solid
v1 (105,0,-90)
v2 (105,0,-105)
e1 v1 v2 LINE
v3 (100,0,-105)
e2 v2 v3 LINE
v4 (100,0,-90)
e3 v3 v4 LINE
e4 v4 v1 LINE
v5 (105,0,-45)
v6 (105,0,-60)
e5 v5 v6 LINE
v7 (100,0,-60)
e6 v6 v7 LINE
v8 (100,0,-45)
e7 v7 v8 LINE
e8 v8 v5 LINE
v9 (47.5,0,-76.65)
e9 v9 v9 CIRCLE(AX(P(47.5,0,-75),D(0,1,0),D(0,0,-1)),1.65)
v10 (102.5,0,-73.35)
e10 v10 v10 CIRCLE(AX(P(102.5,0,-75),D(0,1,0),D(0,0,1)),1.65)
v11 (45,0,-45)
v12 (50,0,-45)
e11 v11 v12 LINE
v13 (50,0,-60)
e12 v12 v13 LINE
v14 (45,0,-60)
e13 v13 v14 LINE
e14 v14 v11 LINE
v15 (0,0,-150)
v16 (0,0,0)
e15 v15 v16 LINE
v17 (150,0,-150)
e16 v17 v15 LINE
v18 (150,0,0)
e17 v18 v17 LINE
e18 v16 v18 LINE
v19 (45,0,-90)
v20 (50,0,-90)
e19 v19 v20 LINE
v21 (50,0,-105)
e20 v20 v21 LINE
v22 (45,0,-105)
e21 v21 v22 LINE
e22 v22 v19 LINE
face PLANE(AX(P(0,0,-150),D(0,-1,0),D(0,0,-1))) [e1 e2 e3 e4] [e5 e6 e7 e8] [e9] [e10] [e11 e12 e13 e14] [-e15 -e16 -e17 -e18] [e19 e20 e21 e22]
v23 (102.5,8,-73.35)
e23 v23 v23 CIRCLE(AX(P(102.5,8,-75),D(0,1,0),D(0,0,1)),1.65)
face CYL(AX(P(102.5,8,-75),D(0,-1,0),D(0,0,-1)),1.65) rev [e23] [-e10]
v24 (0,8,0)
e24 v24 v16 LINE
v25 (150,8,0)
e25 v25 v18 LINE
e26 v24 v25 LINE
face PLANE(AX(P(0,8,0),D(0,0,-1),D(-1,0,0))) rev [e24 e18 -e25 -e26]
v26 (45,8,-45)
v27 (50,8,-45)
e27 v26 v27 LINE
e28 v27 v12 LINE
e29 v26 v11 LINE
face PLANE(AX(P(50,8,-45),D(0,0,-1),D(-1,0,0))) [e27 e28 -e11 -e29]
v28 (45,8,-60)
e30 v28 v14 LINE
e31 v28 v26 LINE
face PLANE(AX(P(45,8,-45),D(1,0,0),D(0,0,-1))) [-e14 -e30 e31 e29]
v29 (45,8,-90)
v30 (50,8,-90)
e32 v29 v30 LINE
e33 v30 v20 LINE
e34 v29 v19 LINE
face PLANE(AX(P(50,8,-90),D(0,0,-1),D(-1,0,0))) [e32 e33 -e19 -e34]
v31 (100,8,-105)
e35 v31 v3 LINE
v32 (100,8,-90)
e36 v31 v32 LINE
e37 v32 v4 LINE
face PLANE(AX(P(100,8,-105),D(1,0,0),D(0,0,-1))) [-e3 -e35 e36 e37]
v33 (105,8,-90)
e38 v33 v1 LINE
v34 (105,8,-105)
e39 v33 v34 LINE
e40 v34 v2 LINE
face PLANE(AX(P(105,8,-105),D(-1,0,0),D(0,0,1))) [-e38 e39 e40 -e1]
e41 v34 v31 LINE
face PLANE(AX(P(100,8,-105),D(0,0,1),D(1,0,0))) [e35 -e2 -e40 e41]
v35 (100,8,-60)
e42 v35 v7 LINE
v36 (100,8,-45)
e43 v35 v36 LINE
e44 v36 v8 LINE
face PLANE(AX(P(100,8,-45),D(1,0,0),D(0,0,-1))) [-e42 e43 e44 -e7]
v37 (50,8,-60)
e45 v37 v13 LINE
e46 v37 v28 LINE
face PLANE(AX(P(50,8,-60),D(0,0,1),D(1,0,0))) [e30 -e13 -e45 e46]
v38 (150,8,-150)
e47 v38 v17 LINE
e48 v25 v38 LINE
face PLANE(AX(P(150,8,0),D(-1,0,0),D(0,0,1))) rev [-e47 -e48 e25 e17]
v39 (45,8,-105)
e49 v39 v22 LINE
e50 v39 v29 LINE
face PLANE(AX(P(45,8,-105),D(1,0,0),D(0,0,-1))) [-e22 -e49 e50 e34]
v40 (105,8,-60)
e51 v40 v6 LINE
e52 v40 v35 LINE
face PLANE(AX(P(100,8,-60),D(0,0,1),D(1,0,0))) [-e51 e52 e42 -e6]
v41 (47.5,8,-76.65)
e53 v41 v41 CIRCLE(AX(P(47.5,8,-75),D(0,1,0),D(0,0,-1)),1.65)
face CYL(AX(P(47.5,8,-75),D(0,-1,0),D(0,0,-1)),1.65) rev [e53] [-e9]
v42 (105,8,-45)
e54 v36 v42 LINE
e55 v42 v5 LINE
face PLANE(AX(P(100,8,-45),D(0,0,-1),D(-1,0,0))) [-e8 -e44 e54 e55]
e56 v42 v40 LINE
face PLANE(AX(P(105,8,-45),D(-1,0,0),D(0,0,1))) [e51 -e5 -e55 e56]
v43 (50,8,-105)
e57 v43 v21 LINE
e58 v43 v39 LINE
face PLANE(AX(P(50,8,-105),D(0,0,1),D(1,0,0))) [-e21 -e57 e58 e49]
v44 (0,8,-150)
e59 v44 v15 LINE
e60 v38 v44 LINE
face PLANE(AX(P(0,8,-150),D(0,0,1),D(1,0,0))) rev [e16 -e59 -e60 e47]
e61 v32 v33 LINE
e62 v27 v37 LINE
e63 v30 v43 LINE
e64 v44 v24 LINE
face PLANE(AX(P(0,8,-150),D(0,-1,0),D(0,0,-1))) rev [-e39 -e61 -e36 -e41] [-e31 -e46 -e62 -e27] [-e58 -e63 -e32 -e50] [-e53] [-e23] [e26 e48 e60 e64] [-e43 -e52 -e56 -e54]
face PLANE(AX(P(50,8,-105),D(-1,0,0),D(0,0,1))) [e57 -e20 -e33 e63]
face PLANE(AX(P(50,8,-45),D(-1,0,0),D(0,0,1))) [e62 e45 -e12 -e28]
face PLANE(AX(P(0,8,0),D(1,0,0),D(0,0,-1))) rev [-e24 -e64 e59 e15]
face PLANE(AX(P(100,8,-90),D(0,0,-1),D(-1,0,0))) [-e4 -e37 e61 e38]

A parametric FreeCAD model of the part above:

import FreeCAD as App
import Part
import Sketcher
from FreeCAD import Vector


def add_polygon(sketch, points):
    """Adds a closed chain of lines whose ends are joined by coincident constraints."""
    first, n = sketch.GeometryCount, len(points)
    for a, b in zip(points, points[1:] + points[:1]):
        sketch.addGeometry(Part.LineSegment(App.Vector(*a, 0), App.Vector(*b, 0)), False)
    for i in range(n):
        sketch.addConstraint(Sketcher.Constraint("Coincident", first + i, 2, first + (i + 1) % n, 1))

doc = App.newDocument("Part")
params = doc.addObject("Spreadsheet::Sheet", "Params")
for row, (alias, value) in enumerate([
    ("sketch1_diameter", "3.3 mm"),
    ("sketch1_width", "150 mm"),
    ("sketch1_width2", "5 mm"),
    ("sketch1_height", "15 mm"),
    ("pad1_length", "8 mm"),
], start=1):
    params.set(f"A{row}", alias)
    params.set(f"B{row}", "=" + value)
    params.setAlias(f"B{row}", alias)

body = doc.addObject("PartDesign::Body", "Body")

sketch1 = body.newObject("Sketcher::SketchObject", "Sketch")
sketch1.AttachmentSupport = (doc.getObject("XZ_Plane"), [""])
sketch1.MapMode = "FlatFace"
add_polygon(sketch1, [(0, -150), (0, 0), (150, 0), (150, -150)])
add_polygon(sketch1, [(50, -45), (45, -45), (45, -60), (50, -60)])
add_polygon(sketch1, [(105, -45), (100, -45), (100, -60), (105, -60)])
sketch1.addGeometry(Part.Circle(Vector(47.5, -75, 0), Vector(0, 0, 1), 1.6), False)
add_polygon(sketch1, [(50, -90), (45, -90), (45, -105), (50, -105)])
sketch1.addGeometry(Part.Circle(Vector(102.5, -75, 0), Vector(0, 0, 1), 1.6), False)
add_polygon(sketch1, [(105, -90), (100, -90), (100, -105), (105, -105)])
sketch1.addConstraint([
    Sketcher.Constraint("Vertical", 0),
    Sketcher.Constraint("Horizontal", 1),
    Sketcher.Constraint("Vertical", 2),
    Sketcher.Constraint("Horizontal", 3),
    Sketcher.Constraint("Horizontal", 4),
    Sketcher.Constraint("Vertical", 5),
    Sketcher.Constraint("Horizontal", 6),
    Sketcher.Constraint("Vertical", 7),
    Sketcher.Constraint("Horizontal", 8),
    Sketcher.Constraint("Vertical", 9),
    Sketcher.Constraint("Horizontal", 10),
    Sketcher.Constraint("Vertical", 11),
    Sketcher.Constraint("Horizontal", 13),
    Sketcher.Constraint("Vertical", 14),
    Sketcher.Constraint("Horizontal", 15),
    Sketcher.Constraint("Vertical", 16),
    Sketcher.Constraint("Horizontal", 18),
    Sketcher.Constraint("Vertical", 19),
    Sketcher.Constraint("Horizontal", 20),
    Sketcher.Constraint("Vertical", 21),
    Sketcher.Constraint("Coincident", 0, 2, -1, 1),
    Sketcher.Constraint("Equal", 12, 17),
    Sketcher.Constraint("Horizontal", 12, 3, 17, 3),
    Sketcher.Constraint("Horizontal", 7, 2, 8, 2),
    Sketcher.Constraint("Horizontal", 6, 2, 9, 2),
    Sketcher.Constraint("Horizontal", 16, 2, 18, 2),
    Sketcher.Constraint("Horizontal", 15, 2, 19, 2),
    Sketcher.Constraint("Vertical", 5, 2, 13, 2),
    Sketcher.Constraint("Vertical", 7, 2, 15, 2),
    Sketcher.Constraint("Vertical", 9, 2, 18, 2),
    Sketcher.Constraint("Vertical", 11, 2, 20, 2),
    Sketcher.Constraint("Equal", 6, 8),
    Sketcher.Constraint("Equal", 3, 0),
    Sketcher.Constraint("Equal", 11, 14),
    Sketcher.Constraint("Diameter", 12, 3.3),
    Sketcher.Constraint("DistanceX", 1, 1, 1, 2, 150.0),
    Sketcher.Constraint("DistanceX", 4, 2, 4, 1, 5.0),
    Sketcher.Constraint("DistanceY", 5, 2, 5, 1, 15.0),
    Sketcher.Constraint("DistanceY", 12, 3, -1, 1, 75.0),
    Sketcher.Constraint("DistanceX", -1, 1, 4, 2, 45.0),
    Sketcher.Constraint("DistanceY", 4, 2, -1, 1, 45.0),
    Sketcher.Constraint("DistanceX", -1, 1, 8, 2, 100.0),
    Sketcher.Constraint("DistanceY", 13, 2, -1, 1, 90.0),
    Sketcher.Constraint("DistanceX", 12, 3, 17, 3, 55.0),
    Sketcher.Constraint("DistanceX", -1, 1, 12, 3, 47.5),
])
sketch1.setExpression("Constraints[54]", "Params.sketch1_diameter")
sketch1.setExpression("Constraints[55]", "Params.sketch1_width")
sketch1.setExpression("Constraints[56]", "Params.sketch1_width2")
sketch1.setExpression("Constraints[57]", "Params.sketch1_height")
pad1 = body.newObject("PartDesign::Pad", "Pad")
pad1.Profile = sketch1
pad1.setExpression("Length", "Params.pad1_length")
pad1.Reversed = True

doc.recompute()
